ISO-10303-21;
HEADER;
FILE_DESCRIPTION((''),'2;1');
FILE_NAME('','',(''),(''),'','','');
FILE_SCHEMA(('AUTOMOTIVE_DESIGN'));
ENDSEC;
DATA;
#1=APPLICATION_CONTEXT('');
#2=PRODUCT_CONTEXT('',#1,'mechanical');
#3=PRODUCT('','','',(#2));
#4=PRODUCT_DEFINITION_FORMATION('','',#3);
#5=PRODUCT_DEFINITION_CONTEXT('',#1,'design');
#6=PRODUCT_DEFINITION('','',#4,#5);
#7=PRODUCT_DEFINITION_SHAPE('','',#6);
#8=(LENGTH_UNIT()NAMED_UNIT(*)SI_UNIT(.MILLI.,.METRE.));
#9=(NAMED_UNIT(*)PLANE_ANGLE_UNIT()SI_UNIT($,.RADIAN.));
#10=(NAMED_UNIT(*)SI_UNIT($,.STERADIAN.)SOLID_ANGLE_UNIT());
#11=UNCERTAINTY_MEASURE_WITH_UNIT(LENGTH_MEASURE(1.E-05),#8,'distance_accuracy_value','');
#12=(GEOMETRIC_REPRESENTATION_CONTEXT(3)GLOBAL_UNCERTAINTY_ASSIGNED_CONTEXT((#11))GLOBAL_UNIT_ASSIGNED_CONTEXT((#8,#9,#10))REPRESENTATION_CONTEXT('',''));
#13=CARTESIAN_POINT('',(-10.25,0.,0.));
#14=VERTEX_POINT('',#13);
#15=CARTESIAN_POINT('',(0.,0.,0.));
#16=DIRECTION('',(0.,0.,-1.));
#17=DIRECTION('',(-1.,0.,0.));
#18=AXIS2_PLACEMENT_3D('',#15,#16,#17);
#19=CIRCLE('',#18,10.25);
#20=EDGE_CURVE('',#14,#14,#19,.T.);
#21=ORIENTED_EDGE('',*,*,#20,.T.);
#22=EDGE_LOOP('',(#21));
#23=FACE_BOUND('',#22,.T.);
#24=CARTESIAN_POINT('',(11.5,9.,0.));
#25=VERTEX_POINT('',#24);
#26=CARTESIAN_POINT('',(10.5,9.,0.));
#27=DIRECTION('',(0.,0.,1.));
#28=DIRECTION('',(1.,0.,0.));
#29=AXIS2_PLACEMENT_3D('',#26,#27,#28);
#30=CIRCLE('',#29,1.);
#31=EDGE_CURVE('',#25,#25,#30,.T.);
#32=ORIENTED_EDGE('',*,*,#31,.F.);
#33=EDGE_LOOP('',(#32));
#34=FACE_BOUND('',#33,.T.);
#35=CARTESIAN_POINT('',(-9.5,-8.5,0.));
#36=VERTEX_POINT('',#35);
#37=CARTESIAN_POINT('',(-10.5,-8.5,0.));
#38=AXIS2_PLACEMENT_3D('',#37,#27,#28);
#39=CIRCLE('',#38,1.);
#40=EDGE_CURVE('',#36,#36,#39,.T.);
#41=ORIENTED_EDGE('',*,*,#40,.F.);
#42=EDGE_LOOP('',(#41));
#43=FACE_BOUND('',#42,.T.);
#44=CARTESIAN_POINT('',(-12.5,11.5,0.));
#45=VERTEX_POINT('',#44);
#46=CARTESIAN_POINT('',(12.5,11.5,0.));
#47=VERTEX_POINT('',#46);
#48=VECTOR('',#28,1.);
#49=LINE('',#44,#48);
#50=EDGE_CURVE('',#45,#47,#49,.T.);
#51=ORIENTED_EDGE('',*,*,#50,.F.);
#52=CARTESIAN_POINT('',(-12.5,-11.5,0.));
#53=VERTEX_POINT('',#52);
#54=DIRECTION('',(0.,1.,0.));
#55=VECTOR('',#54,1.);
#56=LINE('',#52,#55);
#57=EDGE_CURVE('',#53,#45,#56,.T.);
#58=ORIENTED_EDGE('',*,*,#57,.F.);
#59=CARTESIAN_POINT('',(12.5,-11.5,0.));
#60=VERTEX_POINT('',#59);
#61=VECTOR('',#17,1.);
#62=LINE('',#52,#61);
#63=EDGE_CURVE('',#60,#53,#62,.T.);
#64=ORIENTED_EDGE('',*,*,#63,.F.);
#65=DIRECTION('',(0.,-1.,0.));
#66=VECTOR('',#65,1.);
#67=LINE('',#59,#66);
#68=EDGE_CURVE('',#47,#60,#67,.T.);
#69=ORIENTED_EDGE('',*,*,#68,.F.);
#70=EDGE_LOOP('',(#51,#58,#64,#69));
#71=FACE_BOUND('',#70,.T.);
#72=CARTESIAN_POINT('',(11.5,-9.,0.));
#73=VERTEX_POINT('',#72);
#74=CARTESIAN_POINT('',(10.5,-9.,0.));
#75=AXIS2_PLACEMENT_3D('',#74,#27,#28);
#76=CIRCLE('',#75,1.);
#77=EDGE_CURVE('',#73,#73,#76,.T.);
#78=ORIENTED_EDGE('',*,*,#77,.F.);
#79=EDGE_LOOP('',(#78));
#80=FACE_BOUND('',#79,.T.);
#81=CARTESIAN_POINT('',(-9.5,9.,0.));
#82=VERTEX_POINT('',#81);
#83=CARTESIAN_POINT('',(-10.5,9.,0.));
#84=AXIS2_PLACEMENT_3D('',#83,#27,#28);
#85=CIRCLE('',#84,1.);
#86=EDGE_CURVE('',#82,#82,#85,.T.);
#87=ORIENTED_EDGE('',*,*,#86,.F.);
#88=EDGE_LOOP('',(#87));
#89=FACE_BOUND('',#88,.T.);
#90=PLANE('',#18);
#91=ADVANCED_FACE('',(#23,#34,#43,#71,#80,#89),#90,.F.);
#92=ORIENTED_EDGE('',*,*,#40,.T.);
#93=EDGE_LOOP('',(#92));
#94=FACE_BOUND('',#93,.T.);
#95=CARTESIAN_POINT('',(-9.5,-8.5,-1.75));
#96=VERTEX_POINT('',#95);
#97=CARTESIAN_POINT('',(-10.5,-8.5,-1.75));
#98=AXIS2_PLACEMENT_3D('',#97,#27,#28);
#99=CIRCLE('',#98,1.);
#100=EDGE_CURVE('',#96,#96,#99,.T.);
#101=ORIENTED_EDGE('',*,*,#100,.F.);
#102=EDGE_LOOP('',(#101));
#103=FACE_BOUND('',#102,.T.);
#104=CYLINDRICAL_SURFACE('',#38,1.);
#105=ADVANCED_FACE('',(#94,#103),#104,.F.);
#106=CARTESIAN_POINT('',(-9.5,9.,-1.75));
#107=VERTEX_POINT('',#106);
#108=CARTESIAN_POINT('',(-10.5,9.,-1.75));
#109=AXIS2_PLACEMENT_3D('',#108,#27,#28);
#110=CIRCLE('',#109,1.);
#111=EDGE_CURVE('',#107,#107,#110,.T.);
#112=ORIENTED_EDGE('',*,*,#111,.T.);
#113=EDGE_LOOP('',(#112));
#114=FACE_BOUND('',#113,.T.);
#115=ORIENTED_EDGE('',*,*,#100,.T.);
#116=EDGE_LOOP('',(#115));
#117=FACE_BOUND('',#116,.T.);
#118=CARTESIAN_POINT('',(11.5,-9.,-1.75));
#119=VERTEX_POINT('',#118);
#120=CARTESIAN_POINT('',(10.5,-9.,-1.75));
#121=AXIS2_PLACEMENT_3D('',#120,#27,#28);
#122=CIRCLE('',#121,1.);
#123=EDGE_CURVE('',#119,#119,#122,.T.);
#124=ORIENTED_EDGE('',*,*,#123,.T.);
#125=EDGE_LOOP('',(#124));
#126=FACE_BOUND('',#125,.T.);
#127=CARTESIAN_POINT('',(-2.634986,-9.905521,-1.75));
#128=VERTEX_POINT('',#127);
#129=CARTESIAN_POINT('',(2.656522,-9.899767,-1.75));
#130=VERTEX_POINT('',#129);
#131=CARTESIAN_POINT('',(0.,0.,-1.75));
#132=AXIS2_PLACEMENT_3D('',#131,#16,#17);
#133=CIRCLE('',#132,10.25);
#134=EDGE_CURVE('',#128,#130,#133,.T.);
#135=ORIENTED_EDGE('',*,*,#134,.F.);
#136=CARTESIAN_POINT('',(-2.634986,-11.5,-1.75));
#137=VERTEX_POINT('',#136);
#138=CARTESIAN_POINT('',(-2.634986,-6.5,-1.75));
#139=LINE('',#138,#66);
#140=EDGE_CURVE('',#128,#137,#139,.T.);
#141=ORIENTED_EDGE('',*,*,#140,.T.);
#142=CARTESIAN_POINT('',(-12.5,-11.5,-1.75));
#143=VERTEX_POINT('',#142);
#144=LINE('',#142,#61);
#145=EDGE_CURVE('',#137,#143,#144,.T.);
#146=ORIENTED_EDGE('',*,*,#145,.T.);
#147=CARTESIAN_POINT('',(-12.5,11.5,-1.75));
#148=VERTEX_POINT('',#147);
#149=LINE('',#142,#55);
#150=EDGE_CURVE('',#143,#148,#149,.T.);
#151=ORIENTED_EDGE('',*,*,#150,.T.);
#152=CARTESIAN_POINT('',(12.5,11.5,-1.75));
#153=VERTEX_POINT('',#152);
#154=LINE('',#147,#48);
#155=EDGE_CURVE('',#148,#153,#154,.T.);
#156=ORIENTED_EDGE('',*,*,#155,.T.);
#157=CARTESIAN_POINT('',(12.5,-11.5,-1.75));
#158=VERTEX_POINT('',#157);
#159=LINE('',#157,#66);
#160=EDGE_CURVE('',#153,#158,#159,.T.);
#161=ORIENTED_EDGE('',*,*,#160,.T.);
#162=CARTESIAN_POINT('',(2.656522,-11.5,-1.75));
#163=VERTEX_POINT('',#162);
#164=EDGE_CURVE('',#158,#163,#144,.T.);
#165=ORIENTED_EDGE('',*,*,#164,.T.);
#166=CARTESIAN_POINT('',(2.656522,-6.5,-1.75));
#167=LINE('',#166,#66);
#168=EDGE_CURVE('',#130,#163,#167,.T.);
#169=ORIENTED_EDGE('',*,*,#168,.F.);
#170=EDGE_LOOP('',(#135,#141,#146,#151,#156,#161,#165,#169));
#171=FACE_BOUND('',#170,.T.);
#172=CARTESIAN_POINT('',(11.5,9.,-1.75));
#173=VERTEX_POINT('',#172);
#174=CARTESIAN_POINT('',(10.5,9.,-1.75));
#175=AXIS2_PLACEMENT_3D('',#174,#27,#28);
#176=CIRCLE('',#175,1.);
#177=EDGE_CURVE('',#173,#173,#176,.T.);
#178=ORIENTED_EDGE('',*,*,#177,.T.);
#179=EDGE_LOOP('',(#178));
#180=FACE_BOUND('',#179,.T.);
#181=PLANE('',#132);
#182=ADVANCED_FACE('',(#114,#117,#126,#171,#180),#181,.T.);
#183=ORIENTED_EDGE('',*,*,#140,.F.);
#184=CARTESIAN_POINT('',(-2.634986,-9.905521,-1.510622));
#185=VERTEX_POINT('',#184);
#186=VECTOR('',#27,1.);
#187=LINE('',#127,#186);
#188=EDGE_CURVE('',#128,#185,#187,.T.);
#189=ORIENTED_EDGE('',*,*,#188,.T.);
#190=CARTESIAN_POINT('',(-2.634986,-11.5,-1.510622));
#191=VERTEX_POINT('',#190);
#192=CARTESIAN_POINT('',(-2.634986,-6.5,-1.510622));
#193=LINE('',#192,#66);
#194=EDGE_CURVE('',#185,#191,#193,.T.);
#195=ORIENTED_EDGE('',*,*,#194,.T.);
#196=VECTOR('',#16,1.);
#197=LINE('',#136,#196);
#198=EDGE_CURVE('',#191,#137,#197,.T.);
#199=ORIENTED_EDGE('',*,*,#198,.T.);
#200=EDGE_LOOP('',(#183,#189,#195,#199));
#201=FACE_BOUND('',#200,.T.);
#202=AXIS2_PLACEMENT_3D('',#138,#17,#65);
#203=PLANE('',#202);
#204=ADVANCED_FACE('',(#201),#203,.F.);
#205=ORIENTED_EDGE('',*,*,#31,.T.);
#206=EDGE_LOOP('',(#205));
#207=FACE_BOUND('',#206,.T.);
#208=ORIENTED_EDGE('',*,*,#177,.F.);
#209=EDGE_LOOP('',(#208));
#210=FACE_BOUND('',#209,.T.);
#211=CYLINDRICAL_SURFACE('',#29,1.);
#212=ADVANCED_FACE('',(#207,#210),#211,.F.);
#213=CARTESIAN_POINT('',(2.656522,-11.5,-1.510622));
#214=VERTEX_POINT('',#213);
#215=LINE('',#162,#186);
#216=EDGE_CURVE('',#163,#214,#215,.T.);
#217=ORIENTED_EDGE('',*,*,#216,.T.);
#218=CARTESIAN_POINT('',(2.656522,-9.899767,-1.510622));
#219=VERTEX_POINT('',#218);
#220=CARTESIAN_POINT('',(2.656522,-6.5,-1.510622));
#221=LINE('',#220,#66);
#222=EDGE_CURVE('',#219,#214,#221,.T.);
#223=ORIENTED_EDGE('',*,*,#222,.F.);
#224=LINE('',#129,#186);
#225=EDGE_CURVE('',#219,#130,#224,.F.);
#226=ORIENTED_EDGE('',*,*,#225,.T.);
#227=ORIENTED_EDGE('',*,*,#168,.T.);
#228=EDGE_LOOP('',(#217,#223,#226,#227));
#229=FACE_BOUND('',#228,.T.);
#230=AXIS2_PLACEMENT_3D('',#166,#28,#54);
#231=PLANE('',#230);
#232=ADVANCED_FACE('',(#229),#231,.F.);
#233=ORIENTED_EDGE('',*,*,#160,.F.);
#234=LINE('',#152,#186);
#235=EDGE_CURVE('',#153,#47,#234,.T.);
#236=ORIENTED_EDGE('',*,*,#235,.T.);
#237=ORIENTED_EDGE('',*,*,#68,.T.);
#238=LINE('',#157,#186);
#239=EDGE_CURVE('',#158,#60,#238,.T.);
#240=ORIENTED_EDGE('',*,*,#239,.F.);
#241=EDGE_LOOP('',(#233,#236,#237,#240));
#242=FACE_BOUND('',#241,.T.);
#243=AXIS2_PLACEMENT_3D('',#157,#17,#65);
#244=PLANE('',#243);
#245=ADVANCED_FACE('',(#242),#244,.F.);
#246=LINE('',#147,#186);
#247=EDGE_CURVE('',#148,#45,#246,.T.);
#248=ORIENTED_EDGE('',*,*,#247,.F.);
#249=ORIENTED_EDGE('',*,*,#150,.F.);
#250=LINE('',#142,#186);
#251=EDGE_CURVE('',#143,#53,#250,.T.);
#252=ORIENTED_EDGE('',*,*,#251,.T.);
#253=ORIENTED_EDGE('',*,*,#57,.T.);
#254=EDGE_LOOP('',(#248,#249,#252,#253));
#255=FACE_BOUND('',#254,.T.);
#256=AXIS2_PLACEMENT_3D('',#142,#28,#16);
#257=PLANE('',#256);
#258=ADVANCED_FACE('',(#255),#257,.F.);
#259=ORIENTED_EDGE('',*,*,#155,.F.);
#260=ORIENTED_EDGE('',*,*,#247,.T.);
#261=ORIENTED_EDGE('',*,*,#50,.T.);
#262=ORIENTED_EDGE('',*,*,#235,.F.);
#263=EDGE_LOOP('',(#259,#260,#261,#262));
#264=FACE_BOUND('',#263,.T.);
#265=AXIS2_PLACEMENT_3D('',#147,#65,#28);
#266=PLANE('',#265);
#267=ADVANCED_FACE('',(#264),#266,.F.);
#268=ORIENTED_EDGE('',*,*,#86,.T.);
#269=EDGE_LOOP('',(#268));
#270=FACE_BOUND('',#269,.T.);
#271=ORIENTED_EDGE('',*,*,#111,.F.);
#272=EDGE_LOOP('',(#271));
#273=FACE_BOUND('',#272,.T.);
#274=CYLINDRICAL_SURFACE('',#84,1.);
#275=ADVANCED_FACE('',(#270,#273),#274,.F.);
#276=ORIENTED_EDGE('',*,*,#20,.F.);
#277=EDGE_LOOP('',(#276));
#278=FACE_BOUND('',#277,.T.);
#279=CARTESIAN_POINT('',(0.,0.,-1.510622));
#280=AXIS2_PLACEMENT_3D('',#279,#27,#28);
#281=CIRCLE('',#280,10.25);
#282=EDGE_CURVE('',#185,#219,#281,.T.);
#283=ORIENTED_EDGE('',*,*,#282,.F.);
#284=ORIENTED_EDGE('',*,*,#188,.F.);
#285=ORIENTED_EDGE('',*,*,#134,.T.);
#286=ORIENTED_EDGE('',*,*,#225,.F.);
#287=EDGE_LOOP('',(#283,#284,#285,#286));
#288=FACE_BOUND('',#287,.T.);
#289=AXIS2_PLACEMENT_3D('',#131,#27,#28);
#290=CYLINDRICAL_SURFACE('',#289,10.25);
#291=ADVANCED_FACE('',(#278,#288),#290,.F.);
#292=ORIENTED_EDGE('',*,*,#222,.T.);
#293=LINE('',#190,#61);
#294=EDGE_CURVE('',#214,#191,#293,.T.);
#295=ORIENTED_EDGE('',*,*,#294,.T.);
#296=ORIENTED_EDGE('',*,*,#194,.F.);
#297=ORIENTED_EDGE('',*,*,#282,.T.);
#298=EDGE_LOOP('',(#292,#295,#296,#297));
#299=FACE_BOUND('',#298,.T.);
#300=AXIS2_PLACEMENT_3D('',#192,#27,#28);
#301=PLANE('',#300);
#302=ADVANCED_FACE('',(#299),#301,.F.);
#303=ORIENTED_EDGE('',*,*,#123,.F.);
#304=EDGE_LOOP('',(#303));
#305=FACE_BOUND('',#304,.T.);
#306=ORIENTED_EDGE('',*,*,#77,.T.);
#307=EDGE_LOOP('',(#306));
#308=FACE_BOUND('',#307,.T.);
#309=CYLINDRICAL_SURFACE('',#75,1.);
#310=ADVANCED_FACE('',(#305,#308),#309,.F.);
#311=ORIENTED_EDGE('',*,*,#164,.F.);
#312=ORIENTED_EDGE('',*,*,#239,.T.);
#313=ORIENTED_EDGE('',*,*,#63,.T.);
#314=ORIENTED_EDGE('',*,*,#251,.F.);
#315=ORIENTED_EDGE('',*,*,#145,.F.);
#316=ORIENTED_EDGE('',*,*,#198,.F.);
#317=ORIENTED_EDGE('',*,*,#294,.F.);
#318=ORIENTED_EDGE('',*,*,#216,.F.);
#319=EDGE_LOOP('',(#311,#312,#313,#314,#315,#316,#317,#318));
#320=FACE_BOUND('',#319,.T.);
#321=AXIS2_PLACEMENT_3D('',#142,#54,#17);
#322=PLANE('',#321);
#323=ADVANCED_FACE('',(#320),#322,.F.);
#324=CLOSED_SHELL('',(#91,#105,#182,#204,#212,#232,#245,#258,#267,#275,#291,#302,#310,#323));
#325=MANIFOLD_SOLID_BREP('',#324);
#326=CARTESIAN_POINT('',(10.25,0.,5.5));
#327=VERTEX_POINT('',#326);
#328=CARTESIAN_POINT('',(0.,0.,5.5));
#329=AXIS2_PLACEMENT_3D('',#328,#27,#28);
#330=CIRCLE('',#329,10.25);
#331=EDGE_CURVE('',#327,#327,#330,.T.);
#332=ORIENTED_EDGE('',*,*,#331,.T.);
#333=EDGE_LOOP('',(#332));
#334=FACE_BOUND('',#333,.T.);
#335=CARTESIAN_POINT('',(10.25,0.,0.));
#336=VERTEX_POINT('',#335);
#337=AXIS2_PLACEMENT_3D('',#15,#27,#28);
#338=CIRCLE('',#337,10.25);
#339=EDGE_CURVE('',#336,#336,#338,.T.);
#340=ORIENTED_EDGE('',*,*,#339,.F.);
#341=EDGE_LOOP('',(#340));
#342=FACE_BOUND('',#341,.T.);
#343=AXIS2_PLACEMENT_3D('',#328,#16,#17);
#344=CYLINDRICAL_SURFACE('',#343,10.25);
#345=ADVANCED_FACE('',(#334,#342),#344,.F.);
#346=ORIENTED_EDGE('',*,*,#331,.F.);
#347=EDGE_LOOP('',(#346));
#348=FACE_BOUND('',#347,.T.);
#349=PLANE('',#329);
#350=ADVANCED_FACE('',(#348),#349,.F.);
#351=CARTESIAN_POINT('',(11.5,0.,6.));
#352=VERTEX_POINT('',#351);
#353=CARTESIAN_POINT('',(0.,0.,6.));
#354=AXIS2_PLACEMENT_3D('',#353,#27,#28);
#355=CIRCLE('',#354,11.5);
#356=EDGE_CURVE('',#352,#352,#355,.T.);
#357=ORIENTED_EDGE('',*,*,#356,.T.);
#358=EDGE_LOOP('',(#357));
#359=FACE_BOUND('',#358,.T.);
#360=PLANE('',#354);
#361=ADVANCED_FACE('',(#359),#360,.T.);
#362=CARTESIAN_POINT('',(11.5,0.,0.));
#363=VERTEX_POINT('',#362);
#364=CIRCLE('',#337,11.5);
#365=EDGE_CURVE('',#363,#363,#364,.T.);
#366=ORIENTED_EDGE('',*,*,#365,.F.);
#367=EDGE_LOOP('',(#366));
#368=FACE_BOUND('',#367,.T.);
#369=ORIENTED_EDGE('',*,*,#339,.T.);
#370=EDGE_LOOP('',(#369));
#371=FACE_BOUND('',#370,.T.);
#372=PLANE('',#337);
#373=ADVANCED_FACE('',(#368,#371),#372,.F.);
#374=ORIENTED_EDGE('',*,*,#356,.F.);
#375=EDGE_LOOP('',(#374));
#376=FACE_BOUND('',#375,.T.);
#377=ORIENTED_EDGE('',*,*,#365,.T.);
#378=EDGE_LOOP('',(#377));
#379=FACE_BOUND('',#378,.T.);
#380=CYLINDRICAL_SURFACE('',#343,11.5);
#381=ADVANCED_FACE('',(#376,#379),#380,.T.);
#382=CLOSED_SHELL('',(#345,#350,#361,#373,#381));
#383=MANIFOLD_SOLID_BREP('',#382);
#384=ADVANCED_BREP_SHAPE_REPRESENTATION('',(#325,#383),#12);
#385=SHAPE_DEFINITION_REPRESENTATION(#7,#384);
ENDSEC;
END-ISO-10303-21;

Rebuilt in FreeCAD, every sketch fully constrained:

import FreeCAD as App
import Part
import Sketcher
Q = App.Units.Quantity

doc = App.newDocument("Part")
body = doc.addObject("PartDesign::Body", "Body")

# Sketch on XY plane
sketch1 = body.newObject("Sketcher::SketchObject", "Sketch")
sketch1.AttachmentSupport = (doc.getObject("XY_Plane"), [""])
sketch1.MapMode = "FlatFace"
sketch1.addGeometry([
    Part.Circle(App.Vector(0, 0, 0), App.Vector(0, 0, 1), 11.5),
    Part.Circle(App.Vector(0, 0, 0), App.Vector(0, 0, 1), 10.25),
], False)
sketch1.addConstraint([
    Sketcher.Constraint("Coincident", 0, 3, -1, 1),
    Sketcher.Constraint("Coincident", 1, 3, -1, 1),
    Sketcher.Constraint("Diameter", 0, Q("23 mm")),
    Sketcher.Constraint("Diameter", 1, Q("20.5 mm")),
])
pad1 = body.newObject("PartDesign::Pad", "Pad")
pad1.Profile = sketch1
pad1.Length = 5.5

# Sketch on XY plane
sketch2 = body.newObject("Sketcher::SketchObject", "Sketch001")
sketch2.AttachmentSupport = (doc.getObject("XY_Plane"), [""])
sketch2.MapMode = "FlatFace"
sketch2.AttachmentOffset = App.Placement(App.Vector(0, 0, 5.5), App.Rotation())
sketch2.addGeometry(Part.Circle(App.Vector(0, 0, 0), App.Vector(0, 0, 1), 11.5), False)
sketch2.addConstraint([
    Sketcher.Constraint("Coincident", 0, 3, -1, 1),
    Sketcher.Constraint("Diameter", 0, Q("23 mm")),
])
pad2 = body.newObject("PartDesign::Pad", "Pad001")
pad2.Profile = sketch2
pad2.Length = 0.5
body2 = doc.addObject("PartDesign::Body", "Body001")

# Sketch on XY plane
sketch3 = body2.newObject("Sketcher::SketchObject", "Sketch002")
sketch3.AttachmentSupport = (doc.getObject("XY_Plane001"), [""])
sketch3.MapMode = "FlatFace"
sketch3.addGeometry([
    Part.LineSegment(App.Vector(12.5, 11.5, 0), App.Vector(12.5, -11.5, 0)),  # 0
    Part.LineSegment(App.Vector(12.5, -11.5, 0), App.Vector(-12.5, -11.5, 0)),  # 1
    Part.LineSegment(App.Vector(-12.5, -11.5, 0), App.Vector(-12.5, 11.5, 0)),  # 2
    Part.LineSegment(App.Vector(-12.5, 11.5, 0), App.Vector(12.5, 11.5, 0)),  # 3
    Part.Circle(App.Vector(0, 0, 0), App.Vector(0, 0, 1), 10.25),  # 4
], False)
sketch3.addConstraint([
    Sketcher.Constraint("Coincident", 0, 2, 1, 1),
    Sketcher.Constraint("Coincident", 1, 2, 2, 1),
    Sketcher.Constraint("Coincident", 2, 2, 3, 1),
    Sketcher.Constraint("Coincident", 3, 2, 0, 1),
    Sketcher.Constraint("Vertical", 0),
    Sketcher.Constraint("Horizontal", 1),
    Sketcher.Constraint("Vertical", 2),
    Sketcher.Constraint("Horizontal", 3),
    Sketcher.Constraint("Coincident", 4, 3, -1, 1),
    Sketcher.Constraint("Symmetric", 0, 2, 2, 2, -1, 1),
    Sketcher.Constraint("Diameter", 4, Q("20.5 mm")),
    Sketcher.Constraint("DistanceX", 1, 2, 1, 1, Q("25 mm")),
    Sketcher.Constraint("DistanceY", 0, 2, 0, 1, Q("23 mm")),
])
pad3 = body2.newObject("PartDesign::Pad", "Pad002")
pad3.Profile = sketch3
pad3.Length = 1.75
pad3.Reversed = True

# Sketch on XZ plane
sketch4 = body2.newObject("Sketcher::SketchObject", "Sketch003")
sketch4.AttachmentSupport = (doc.getObject("XZ_Plane001"), [""])
sketch4.MapMode = "FlatFace"
sketch4.AttachmentOffset = App.Placement(App.Vector(0, 0, 11.5), App.Rotation())
sketch4.addGeometry([
    Part.LineSegment(App.Vector(-2.634986, -1.510622, 0), App.Vector(-2.634986, -1.75, 0)),
    Part.LineSegment(App.Vector(-2.634986, -1.75, 0), App.Vector(2.656522, -1.75, 0)),
    Part.LineSegment(App.Vector(2.656522, -1.75, 0), App.Vector(2.656522, -1.510622, 0)),
    Part.LineSegment(App.Vector(2.656522, -1.510622, 0), App.Vector(-2.634986, -1.510622, 0)),
], False)
sketch4.addConstraint([
    Sketcher.Constraint("Coincident", 0, 2, 1, 1),
    Sketcher.Constraint("Coincident", 1, 2, 2, 1),
    Sketcher.Constraint("Coincident", 2, 2, 3, 1),
    Sketcher.Constraint("Coincident", 3, 2, 0, 1),
    Sketcher.Constraint("Vertical", 0),
    Sketcher.Constraint("Horizontal", 1),
    Sketcher.Constraint("Vertical", 2),
    Sketcher.Constraint("Horizontal", 3),
    Sketcher.Constraint("DistanceY", 0, 2, -1, 1, Q("1.75 mm")),
    Sketcher.Constraint("DistanceX", 1, 1, 1, 2, Q("5.291507 mm")),
    Sketcher.Constraint("DistanceY", 0, 2, 0, 1, Q("0.239378 mm")),
    Sketcher.Constraint("DistanceX", -1, 1, 1, 2, Q("2.656522 mm")),
])
pocket1 = body2.newObject("PartDesign::Pocket", "Pocket")
pocket1.Profile = sketch4
pocket1.Length = 5

# Sketch on YZ plane
sketch5 = body2.newObject("Sketcher::SketchObject", "Sketch004")
sketch5.AttachmentSupport = (doc.getObject("YZ_Plane001"), [""])
sketch5.MapMode = "FlatFace"
sketch5.AttachmentOffset = App.Placement(App.Vector(0, 0, -10.5), App.Rotation())
sketch5.addGeometry([
    Part.LineSegment(App.Vector(9, -1.75, 0), App.Vector(9, 0, 0)),
    Part.LineSegment(App.Vector(9, 0, 0), App.Vector(8, 0, 0)),
    Part.LineSegment(App.Vector(8, 0, 0), App.Vector(8, -1.75, 0)),
    Part.LineSegment(App.Vector(8, -1.75, 0), App.Vector(9, -1.75, 0)),
], False)
sketch5.addGeometry(Part.LineSegment(App.Vector(9, 0, 0), App.Vector(9, -1.75, 0)), True)  # axis
sketch5.addConstraint([
    Sketcher.Constraint("Coincident", 0, 2, 1, 1),
    Sketcher.Constraint("Coincident", 1, 2, 2, 1),
    Sketcher.Constraint("Coincident", 2, 2, 3, 1),
    Sketcher.Constraint("Coincident", 3, 2, 0, 1),
    Sketcher.Constraint("Vertical", 0),
    Sketcher.Constraint("Horizontal", 1),
    Sketcher.Constraint("Vertical", 2),
    Sketcher.Constraint("Horizontal", 3),
    Sketcher.Constraint("Vertical", 4),
    Sketcher.Constraint("Coincident", 4, 1, 0, 2),
    Sketcher.Constraint("PointOnObject", 0, 2, -1),
    Sketcher.Constraint("Horizontal", 2, 2, 4, 2),
    Sketcher.Constraint("DistanceX", 1, 2, 1, 1, Q("1 mm")),
    Sketcher.Constraint("DistanceX", -1, 1, 0, 2, Q("9 mm")),
    Sketcher.Constraint("DistanceY", 0, 1, 0, 2, Q("1.75 mm")),
])
groove = body2.newObject("PartDesign::Groove", "Groove")
groove.Profile = sketch5
groove.ReferenceAxis = (sketch5, ["Axis0"])
groove.Angle = 360
doc.recompute()

linearpattern = body2.newObject("PartDesign::LinearPattern", "LinearPattern")
linearpattern.Originals = [groove]
linearpattern.Direction = (doc.getObject("X_Axis001"), [""])
linearpattern.Mode = "offset"
linearpattern.Offset = 21
linearpattern.Occurrences = 2
body2.Tip = linearpattern
doc.recompute()

datumline = body2.newObject("PartDesign::Line", "DatumLine")
datumline.Placement = App.Placement(App.Vector(0, 0, 0), App.Rotation(App.Vector(0, 0, 1), App.Vector(0.759256602, -0.650791373, 0)))
linearpattern2 = body2.newObject("PartDesign::LinearPattern", "LinearPattern001")
linearpattern2.Originals = [groove]
linearpattern2.Direction = (datumline, [""])
linearpattern2.Mode = "offset"
linearpattern2.Offset = 27.658633
linearpattern2.Occurrences = 2
body2.Tip = linearpattern2
doc.recompute()

linearpattern3 = body2.newObject("PartDesign::LinearPattern", "LinearPattern002")
linearpattern3.Originals = [groove]
linearpattern3.Direction = (doc.getObject("Y_Axis001"), [""])
linearpattern3.Mode = "offset"
linearpattern3.Offset = 17.5
linearpattern3.Occurrences = 2
linearpattern3.Reversed = True
body2.Tip = linearpattern3

doc.recompute()
